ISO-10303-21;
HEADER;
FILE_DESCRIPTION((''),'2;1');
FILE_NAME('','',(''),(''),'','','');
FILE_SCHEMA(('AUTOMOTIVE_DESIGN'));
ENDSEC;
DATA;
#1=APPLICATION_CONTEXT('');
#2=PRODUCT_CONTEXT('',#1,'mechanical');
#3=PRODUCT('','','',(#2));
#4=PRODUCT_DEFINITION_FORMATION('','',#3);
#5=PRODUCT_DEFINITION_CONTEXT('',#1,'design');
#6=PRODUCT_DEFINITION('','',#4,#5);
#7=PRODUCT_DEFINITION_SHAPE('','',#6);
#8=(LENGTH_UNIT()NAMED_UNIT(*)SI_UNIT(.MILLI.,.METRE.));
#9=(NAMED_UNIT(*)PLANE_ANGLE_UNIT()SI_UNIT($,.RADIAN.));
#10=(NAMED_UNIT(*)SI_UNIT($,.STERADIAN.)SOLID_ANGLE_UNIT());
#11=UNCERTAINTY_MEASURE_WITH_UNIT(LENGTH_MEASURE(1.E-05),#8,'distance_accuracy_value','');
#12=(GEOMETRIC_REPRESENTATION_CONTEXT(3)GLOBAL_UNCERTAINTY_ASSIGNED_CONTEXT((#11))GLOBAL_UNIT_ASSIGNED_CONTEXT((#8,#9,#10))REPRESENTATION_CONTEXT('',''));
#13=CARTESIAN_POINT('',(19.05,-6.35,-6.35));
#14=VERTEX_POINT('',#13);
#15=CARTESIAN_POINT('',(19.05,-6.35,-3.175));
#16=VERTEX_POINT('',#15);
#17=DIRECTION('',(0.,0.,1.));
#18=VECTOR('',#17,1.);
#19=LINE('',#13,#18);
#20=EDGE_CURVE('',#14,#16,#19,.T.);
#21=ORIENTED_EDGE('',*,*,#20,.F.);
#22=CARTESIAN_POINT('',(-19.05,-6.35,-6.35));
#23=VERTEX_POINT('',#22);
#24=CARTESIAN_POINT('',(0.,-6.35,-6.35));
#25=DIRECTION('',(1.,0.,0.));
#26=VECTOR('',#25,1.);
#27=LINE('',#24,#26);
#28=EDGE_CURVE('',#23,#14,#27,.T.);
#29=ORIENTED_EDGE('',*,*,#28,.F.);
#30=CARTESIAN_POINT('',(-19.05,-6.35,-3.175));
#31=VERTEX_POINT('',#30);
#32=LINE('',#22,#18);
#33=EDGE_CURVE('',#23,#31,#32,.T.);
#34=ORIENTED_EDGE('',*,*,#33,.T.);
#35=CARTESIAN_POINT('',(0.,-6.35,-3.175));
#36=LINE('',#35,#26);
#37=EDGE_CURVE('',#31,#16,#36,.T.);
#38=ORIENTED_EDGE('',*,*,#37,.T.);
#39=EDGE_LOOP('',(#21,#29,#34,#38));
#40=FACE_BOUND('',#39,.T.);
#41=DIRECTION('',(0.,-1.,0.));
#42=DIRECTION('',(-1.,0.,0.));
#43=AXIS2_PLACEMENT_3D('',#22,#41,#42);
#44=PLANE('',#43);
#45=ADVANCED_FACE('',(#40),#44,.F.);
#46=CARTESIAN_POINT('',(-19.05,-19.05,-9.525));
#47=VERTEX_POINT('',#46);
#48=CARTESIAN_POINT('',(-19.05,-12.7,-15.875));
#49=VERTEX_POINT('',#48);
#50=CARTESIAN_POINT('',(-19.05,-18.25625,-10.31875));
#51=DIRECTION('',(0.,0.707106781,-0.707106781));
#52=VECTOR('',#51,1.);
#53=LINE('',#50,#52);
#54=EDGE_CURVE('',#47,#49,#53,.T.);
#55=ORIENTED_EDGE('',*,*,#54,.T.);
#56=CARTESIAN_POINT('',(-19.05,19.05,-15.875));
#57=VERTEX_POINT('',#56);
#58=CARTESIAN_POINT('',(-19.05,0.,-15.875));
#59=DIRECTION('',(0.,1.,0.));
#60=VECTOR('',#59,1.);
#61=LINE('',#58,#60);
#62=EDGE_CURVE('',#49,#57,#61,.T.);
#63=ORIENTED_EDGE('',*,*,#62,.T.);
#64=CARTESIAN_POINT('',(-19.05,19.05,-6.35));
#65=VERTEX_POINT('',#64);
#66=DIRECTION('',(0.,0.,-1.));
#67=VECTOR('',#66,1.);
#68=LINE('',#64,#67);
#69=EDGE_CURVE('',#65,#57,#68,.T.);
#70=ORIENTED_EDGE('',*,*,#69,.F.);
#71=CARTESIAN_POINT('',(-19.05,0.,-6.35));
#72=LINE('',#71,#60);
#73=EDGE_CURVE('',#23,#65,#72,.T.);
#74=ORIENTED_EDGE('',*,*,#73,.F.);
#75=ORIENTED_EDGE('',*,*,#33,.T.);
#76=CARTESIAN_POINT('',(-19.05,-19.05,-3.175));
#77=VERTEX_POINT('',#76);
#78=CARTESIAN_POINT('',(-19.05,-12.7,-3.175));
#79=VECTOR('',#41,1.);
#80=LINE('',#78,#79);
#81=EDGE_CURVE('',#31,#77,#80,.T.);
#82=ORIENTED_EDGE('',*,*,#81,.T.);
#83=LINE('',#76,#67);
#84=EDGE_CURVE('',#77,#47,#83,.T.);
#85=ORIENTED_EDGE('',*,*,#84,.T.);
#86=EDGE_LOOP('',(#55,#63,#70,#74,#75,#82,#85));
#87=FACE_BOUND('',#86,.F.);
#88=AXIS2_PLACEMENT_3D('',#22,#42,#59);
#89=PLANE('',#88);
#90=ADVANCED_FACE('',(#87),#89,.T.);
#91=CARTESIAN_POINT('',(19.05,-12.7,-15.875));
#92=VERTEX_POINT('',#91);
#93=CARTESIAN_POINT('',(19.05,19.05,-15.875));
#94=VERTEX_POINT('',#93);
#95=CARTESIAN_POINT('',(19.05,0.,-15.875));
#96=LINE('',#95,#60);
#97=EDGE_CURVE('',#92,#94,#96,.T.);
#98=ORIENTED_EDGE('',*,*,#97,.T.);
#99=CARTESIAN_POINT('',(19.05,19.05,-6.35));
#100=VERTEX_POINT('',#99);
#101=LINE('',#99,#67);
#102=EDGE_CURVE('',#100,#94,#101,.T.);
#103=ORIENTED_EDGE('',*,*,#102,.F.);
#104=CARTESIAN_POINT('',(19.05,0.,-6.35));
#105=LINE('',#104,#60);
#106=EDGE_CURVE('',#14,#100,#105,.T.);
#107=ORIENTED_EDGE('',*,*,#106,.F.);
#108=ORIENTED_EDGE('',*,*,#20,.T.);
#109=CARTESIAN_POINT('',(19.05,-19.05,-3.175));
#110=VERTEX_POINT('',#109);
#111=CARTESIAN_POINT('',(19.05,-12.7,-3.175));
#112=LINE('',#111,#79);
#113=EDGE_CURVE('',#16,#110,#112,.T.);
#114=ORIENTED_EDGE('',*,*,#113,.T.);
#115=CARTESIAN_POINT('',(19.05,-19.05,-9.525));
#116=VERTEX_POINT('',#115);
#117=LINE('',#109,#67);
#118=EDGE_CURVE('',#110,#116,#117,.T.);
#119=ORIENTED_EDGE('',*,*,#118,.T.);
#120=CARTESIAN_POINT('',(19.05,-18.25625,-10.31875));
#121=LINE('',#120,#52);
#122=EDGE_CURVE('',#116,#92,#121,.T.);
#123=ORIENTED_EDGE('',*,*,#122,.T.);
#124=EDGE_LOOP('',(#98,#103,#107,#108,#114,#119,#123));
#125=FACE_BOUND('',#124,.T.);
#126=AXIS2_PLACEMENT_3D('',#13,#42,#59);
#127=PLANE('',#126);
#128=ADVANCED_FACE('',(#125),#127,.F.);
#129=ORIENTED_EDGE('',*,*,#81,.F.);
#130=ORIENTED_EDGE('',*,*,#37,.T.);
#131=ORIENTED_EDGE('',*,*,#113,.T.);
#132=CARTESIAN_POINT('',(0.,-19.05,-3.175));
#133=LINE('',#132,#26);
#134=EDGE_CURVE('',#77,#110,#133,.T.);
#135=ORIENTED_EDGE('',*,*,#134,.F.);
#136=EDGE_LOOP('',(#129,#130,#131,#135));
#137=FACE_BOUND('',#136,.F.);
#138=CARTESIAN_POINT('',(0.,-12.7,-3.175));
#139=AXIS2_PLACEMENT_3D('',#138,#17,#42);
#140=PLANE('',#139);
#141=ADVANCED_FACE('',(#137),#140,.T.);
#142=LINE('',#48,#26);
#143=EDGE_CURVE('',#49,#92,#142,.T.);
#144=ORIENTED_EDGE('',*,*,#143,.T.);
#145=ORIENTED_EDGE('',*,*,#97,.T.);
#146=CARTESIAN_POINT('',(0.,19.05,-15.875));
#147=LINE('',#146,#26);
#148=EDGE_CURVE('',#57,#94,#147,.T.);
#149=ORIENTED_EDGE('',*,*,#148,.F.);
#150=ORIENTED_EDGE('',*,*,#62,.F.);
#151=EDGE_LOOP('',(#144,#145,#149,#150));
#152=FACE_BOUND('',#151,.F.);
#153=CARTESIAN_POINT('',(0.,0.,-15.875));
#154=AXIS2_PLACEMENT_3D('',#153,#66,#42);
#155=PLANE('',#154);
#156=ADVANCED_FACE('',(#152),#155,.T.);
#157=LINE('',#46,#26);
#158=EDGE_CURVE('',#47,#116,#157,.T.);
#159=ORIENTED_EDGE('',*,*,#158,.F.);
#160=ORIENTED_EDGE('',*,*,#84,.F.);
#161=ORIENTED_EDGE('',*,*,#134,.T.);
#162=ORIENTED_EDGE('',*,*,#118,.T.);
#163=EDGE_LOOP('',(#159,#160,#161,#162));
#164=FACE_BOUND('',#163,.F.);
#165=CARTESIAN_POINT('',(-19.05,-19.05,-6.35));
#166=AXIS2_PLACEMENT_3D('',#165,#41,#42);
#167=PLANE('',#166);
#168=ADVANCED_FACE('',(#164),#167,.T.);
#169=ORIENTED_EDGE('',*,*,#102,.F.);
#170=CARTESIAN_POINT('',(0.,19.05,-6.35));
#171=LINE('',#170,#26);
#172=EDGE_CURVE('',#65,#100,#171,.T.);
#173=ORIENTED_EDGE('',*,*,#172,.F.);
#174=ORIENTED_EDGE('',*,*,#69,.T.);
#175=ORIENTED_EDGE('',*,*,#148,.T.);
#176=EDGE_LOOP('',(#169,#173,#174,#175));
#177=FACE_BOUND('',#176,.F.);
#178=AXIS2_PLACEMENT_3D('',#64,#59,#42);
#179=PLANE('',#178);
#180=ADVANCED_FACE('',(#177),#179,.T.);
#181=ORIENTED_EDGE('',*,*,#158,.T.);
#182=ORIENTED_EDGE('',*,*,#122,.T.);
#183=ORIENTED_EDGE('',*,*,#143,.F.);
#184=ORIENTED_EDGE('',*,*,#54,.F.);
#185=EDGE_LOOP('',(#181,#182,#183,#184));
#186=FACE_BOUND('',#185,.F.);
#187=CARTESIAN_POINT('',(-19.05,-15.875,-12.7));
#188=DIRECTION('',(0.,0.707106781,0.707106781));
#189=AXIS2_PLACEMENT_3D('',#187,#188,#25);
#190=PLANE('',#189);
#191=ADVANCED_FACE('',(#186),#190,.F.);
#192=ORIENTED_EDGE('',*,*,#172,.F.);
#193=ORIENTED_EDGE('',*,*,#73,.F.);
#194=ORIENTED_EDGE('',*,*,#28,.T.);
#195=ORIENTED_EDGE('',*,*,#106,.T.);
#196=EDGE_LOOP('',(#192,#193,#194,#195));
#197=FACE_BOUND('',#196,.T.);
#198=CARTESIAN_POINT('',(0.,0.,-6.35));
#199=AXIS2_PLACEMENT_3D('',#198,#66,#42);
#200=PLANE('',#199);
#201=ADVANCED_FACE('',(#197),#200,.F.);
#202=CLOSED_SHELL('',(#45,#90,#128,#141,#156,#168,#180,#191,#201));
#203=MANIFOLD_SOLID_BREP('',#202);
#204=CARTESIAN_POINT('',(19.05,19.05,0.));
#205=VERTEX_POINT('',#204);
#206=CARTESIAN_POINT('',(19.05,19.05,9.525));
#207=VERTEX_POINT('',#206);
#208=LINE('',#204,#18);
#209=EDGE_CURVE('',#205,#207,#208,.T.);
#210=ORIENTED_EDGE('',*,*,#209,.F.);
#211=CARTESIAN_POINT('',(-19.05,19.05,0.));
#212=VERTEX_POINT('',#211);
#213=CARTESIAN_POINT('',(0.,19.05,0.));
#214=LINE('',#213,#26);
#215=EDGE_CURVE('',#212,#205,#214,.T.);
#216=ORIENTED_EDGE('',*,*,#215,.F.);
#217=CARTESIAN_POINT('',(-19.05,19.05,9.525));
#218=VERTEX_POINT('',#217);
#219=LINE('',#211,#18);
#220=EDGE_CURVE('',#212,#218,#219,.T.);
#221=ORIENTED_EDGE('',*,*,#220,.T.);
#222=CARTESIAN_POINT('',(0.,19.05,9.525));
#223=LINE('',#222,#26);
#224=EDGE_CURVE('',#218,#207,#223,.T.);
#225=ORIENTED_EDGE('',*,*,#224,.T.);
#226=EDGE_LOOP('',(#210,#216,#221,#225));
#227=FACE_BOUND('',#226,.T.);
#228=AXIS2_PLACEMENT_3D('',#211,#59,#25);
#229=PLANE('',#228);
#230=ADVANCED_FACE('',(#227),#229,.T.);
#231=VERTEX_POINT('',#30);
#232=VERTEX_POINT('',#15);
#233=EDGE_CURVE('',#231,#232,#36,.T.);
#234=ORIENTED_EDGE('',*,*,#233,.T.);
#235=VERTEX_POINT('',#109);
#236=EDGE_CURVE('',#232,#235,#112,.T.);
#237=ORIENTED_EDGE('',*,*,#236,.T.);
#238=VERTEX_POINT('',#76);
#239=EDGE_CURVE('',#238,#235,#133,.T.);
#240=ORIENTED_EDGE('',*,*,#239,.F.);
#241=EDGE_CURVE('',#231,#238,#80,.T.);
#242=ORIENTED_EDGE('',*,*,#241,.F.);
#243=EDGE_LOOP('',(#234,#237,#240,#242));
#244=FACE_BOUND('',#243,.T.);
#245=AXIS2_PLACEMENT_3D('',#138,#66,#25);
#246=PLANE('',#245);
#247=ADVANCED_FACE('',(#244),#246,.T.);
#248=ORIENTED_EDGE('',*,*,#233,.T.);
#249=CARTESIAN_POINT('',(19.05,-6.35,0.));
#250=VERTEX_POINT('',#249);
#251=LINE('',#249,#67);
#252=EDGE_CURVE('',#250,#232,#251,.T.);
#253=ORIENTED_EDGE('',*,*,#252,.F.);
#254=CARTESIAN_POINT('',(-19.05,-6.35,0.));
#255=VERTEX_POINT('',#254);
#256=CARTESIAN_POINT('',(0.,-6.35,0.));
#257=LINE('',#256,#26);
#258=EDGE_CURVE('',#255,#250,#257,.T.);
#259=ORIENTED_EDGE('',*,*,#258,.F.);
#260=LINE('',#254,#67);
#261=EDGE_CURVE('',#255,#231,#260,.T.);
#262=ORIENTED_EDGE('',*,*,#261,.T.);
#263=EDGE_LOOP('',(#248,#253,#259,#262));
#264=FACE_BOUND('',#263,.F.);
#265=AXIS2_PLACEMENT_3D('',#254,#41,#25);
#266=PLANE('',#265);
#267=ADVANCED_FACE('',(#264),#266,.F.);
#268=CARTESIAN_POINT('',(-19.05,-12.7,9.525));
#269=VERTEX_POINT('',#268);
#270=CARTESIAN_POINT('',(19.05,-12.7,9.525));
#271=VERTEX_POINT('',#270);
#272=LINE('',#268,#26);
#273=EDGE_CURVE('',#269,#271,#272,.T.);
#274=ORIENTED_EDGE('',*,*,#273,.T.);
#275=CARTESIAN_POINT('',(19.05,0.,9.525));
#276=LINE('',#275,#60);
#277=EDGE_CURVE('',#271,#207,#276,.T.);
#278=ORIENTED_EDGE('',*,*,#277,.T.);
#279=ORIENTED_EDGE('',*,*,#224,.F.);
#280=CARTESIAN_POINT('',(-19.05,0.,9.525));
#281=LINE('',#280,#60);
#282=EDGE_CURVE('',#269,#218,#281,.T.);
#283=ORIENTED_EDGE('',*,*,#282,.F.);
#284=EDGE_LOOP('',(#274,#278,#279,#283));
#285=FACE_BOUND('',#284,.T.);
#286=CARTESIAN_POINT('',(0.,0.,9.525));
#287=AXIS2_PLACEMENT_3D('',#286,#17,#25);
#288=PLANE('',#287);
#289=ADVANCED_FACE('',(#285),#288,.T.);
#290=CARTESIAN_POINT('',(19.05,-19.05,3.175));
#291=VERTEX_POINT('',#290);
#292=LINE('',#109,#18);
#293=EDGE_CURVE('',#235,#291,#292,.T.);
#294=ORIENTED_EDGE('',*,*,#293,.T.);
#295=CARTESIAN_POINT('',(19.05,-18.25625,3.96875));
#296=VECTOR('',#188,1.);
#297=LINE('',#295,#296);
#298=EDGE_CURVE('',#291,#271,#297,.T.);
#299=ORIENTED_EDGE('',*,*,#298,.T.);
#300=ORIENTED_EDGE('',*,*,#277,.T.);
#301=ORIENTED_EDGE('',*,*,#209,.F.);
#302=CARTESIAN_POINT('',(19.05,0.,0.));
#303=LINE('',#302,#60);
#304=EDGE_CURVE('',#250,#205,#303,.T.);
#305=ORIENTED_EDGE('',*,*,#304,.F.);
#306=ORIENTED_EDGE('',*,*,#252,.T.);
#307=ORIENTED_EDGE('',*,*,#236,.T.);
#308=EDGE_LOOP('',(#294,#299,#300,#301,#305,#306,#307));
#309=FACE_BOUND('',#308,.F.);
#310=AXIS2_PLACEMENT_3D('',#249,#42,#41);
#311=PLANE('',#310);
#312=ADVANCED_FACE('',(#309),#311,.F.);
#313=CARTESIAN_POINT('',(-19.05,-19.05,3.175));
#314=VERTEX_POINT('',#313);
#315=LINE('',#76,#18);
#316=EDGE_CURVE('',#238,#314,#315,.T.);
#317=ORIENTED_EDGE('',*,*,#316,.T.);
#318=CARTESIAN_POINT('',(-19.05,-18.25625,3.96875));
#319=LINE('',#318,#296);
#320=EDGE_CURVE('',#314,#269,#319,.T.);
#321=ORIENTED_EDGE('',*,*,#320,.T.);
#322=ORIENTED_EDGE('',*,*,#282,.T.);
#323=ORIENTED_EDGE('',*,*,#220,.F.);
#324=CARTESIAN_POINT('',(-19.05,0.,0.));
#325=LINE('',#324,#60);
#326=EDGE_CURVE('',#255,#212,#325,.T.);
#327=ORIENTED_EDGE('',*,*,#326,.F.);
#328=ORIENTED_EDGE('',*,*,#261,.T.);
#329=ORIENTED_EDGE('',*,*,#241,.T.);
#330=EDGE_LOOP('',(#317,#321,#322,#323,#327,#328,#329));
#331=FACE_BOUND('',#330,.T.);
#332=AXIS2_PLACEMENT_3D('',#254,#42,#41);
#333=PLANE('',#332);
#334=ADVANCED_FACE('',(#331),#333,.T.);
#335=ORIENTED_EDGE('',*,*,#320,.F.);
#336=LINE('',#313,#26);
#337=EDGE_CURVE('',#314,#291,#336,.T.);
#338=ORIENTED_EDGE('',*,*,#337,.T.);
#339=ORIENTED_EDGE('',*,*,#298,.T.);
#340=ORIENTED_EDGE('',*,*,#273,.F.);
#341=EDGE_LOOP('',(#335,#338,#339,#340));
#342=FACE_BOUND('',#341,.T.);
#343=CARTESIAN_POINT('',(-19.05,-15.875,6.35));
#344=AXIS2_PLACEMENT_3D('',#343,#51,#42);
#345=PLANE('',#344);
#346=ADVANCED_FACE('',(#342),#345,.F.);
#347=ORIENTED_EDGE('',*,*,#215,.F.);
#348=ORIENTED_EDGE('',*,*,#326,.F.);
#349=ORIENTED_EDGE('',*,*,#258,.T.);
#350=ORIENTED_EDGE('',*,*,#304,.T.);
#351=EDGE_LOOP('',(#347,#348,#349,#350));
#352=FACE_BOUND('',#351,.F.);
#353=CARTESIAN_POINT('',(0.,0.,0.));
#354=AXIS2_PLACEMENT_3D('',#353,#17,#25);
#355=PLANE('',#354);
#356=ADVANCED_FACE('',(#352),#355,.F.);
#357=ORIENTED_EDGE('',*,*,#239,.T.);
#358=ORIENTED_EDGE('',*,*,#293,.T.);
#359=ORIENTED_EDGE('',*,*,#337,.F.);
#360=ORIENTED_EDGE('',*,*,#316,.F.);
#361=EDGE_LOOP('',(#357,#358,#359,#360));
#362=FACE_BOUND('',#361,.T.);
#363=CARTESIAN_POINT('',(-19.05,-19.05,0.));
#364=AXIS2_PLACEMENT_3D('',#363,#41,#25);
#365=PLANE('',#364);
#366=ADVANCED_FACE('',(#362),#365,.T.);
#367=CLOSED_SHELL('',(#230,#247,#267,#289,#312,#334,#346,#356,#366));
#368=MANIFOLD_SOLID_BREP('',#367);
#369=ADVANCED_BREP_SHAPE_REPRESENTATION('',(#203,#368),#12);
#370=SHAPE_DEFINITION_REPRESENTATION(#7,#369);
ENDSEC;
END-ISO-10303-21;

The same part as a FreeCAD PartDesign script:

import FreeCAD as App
import Part
import Sketcher
from FreeCAD import Vector
Q = App.Units.Quantity


def edges_at(feature, points):
    """Names of the edges that pass closest to the given points."""
    edges = feature.Shape.Edges
    near = lambda p: min(range(len(edges)), key=lambda i: edges[i].distToShape(Part.Vertex(*p))[0])
    return sorted({f"Edge{near(p) + 1}" for p in points})


def add_polygon(sketch, points):
    """Adds a closed chain of lines whose ends are joined by coincident constraints."""
    first, n = sketch.GeometryCount, len(points)
    for a, b in zip(points, points[1:] + points[:1]):
        sketch.addGeometry(Part.LineSegment(App.Vector(*a, 0), App.Vector(*b, 0)), False)
    for i in range(n):
        sketch.addConstraint(Sketcher.Constraint("Coincident", first + i, 2, first + (i + 1) % n, 1))

doc = App.newDocument("Part")
body = doc.addObject("PartDesign::Body", "Body")

sketch1 = body.newObject("Sketcher::SketchObject", "Sketch")
sketch1.AttachmentSupport = (doc.getObject("XY_Plane"), [""])
sketch1.MapMode = "FlatFace"
add_polygon(sketch1, [(-19, 19), (-19, -19), (19, -19), (19, 19)])
sketch1.addConstraint([
    Sketcher.Constraint("Vertical", 0),
    Sketcher.Constraint("Horizontal", 1),
    Sketcher.Constraint("Vertical", 2),
    Sketcher.Constraint("Horizontal", 3),
    Sketcher.Constraint("Symmetric", 0, 2, 2, 2, -1, 1),
    Sketcher.Constraint("Equal", 3, 0),
    Sketcher.Constraint("DistanceX", 1, 1, 1, 2, Q("1.5 in")),
])
pad1 = body.newObject("PartDesign::Pad", "Pad")
pad1.Profile = sketch1
pad1.Length = Q("0.375 in")
doc.recompute()

chamfer = body.newObject("PartDesign::Chamfer", "Chamfer")
chamfer.Base = (pad1, edges_at(pad1, [(0, -19.05, 9.525)]))
chamfer.Size = Q("0.25 in")

sketch2 = body.newObject("Sketcher::SketchObject", "Sketch001")
sketch2.AttachmentSupport = (doc.getObject("XY_Plane"), [""])
sketch2.MapMode = "FlatFace"
add_polygon(sketch2, [(-19, -19), (-19, -6), (19, -6), (19, -19)])
sketch2.addConstraint([
    Sketcher.Constraint("Vertical", 0),
    Sketcher.Constraint("Horizontal", 1),
    Sketcher.Constraint("Vertical", 2),
    Sketcher.Constraint("Horizontal", 3),
    Sketcher.Constraint("DistanceX", 1, 1, 1, 2, Q("1.5 in")),
    Sketcher.Constraint("DistanceY", 0, 1, 0, 2, Q("0.5 in")),
    Sketcher.Constraint("DistanceX", 0, 2, -1, 1, Q("0.75 in")),
    Sketcher.Constraint("DistanceY", 0, 2, -1, 1, Q("0.25 in")),
])
pad2 = body.newObject("PartDesign::Pad", "Pad001")
pad2.Profile = sketch2
pad2.Length = Q("0.125 in")
pad2.Reversed = True
body2 = doc.addObject("PartDesign::Body", "Body001")
doc.recompute()

mirroring = doc.addObject("Part::Mirroring", "Mirroring")
mirroring.Source = body
mirroring.Base = Vector(0, -12.7, -3.175)
mirroring.Normal = Vector(0, 0, -1)
body2.BaseFeature = mirroring
doc.recompute()
mirroring.Visibility = False

doc.recompute()
